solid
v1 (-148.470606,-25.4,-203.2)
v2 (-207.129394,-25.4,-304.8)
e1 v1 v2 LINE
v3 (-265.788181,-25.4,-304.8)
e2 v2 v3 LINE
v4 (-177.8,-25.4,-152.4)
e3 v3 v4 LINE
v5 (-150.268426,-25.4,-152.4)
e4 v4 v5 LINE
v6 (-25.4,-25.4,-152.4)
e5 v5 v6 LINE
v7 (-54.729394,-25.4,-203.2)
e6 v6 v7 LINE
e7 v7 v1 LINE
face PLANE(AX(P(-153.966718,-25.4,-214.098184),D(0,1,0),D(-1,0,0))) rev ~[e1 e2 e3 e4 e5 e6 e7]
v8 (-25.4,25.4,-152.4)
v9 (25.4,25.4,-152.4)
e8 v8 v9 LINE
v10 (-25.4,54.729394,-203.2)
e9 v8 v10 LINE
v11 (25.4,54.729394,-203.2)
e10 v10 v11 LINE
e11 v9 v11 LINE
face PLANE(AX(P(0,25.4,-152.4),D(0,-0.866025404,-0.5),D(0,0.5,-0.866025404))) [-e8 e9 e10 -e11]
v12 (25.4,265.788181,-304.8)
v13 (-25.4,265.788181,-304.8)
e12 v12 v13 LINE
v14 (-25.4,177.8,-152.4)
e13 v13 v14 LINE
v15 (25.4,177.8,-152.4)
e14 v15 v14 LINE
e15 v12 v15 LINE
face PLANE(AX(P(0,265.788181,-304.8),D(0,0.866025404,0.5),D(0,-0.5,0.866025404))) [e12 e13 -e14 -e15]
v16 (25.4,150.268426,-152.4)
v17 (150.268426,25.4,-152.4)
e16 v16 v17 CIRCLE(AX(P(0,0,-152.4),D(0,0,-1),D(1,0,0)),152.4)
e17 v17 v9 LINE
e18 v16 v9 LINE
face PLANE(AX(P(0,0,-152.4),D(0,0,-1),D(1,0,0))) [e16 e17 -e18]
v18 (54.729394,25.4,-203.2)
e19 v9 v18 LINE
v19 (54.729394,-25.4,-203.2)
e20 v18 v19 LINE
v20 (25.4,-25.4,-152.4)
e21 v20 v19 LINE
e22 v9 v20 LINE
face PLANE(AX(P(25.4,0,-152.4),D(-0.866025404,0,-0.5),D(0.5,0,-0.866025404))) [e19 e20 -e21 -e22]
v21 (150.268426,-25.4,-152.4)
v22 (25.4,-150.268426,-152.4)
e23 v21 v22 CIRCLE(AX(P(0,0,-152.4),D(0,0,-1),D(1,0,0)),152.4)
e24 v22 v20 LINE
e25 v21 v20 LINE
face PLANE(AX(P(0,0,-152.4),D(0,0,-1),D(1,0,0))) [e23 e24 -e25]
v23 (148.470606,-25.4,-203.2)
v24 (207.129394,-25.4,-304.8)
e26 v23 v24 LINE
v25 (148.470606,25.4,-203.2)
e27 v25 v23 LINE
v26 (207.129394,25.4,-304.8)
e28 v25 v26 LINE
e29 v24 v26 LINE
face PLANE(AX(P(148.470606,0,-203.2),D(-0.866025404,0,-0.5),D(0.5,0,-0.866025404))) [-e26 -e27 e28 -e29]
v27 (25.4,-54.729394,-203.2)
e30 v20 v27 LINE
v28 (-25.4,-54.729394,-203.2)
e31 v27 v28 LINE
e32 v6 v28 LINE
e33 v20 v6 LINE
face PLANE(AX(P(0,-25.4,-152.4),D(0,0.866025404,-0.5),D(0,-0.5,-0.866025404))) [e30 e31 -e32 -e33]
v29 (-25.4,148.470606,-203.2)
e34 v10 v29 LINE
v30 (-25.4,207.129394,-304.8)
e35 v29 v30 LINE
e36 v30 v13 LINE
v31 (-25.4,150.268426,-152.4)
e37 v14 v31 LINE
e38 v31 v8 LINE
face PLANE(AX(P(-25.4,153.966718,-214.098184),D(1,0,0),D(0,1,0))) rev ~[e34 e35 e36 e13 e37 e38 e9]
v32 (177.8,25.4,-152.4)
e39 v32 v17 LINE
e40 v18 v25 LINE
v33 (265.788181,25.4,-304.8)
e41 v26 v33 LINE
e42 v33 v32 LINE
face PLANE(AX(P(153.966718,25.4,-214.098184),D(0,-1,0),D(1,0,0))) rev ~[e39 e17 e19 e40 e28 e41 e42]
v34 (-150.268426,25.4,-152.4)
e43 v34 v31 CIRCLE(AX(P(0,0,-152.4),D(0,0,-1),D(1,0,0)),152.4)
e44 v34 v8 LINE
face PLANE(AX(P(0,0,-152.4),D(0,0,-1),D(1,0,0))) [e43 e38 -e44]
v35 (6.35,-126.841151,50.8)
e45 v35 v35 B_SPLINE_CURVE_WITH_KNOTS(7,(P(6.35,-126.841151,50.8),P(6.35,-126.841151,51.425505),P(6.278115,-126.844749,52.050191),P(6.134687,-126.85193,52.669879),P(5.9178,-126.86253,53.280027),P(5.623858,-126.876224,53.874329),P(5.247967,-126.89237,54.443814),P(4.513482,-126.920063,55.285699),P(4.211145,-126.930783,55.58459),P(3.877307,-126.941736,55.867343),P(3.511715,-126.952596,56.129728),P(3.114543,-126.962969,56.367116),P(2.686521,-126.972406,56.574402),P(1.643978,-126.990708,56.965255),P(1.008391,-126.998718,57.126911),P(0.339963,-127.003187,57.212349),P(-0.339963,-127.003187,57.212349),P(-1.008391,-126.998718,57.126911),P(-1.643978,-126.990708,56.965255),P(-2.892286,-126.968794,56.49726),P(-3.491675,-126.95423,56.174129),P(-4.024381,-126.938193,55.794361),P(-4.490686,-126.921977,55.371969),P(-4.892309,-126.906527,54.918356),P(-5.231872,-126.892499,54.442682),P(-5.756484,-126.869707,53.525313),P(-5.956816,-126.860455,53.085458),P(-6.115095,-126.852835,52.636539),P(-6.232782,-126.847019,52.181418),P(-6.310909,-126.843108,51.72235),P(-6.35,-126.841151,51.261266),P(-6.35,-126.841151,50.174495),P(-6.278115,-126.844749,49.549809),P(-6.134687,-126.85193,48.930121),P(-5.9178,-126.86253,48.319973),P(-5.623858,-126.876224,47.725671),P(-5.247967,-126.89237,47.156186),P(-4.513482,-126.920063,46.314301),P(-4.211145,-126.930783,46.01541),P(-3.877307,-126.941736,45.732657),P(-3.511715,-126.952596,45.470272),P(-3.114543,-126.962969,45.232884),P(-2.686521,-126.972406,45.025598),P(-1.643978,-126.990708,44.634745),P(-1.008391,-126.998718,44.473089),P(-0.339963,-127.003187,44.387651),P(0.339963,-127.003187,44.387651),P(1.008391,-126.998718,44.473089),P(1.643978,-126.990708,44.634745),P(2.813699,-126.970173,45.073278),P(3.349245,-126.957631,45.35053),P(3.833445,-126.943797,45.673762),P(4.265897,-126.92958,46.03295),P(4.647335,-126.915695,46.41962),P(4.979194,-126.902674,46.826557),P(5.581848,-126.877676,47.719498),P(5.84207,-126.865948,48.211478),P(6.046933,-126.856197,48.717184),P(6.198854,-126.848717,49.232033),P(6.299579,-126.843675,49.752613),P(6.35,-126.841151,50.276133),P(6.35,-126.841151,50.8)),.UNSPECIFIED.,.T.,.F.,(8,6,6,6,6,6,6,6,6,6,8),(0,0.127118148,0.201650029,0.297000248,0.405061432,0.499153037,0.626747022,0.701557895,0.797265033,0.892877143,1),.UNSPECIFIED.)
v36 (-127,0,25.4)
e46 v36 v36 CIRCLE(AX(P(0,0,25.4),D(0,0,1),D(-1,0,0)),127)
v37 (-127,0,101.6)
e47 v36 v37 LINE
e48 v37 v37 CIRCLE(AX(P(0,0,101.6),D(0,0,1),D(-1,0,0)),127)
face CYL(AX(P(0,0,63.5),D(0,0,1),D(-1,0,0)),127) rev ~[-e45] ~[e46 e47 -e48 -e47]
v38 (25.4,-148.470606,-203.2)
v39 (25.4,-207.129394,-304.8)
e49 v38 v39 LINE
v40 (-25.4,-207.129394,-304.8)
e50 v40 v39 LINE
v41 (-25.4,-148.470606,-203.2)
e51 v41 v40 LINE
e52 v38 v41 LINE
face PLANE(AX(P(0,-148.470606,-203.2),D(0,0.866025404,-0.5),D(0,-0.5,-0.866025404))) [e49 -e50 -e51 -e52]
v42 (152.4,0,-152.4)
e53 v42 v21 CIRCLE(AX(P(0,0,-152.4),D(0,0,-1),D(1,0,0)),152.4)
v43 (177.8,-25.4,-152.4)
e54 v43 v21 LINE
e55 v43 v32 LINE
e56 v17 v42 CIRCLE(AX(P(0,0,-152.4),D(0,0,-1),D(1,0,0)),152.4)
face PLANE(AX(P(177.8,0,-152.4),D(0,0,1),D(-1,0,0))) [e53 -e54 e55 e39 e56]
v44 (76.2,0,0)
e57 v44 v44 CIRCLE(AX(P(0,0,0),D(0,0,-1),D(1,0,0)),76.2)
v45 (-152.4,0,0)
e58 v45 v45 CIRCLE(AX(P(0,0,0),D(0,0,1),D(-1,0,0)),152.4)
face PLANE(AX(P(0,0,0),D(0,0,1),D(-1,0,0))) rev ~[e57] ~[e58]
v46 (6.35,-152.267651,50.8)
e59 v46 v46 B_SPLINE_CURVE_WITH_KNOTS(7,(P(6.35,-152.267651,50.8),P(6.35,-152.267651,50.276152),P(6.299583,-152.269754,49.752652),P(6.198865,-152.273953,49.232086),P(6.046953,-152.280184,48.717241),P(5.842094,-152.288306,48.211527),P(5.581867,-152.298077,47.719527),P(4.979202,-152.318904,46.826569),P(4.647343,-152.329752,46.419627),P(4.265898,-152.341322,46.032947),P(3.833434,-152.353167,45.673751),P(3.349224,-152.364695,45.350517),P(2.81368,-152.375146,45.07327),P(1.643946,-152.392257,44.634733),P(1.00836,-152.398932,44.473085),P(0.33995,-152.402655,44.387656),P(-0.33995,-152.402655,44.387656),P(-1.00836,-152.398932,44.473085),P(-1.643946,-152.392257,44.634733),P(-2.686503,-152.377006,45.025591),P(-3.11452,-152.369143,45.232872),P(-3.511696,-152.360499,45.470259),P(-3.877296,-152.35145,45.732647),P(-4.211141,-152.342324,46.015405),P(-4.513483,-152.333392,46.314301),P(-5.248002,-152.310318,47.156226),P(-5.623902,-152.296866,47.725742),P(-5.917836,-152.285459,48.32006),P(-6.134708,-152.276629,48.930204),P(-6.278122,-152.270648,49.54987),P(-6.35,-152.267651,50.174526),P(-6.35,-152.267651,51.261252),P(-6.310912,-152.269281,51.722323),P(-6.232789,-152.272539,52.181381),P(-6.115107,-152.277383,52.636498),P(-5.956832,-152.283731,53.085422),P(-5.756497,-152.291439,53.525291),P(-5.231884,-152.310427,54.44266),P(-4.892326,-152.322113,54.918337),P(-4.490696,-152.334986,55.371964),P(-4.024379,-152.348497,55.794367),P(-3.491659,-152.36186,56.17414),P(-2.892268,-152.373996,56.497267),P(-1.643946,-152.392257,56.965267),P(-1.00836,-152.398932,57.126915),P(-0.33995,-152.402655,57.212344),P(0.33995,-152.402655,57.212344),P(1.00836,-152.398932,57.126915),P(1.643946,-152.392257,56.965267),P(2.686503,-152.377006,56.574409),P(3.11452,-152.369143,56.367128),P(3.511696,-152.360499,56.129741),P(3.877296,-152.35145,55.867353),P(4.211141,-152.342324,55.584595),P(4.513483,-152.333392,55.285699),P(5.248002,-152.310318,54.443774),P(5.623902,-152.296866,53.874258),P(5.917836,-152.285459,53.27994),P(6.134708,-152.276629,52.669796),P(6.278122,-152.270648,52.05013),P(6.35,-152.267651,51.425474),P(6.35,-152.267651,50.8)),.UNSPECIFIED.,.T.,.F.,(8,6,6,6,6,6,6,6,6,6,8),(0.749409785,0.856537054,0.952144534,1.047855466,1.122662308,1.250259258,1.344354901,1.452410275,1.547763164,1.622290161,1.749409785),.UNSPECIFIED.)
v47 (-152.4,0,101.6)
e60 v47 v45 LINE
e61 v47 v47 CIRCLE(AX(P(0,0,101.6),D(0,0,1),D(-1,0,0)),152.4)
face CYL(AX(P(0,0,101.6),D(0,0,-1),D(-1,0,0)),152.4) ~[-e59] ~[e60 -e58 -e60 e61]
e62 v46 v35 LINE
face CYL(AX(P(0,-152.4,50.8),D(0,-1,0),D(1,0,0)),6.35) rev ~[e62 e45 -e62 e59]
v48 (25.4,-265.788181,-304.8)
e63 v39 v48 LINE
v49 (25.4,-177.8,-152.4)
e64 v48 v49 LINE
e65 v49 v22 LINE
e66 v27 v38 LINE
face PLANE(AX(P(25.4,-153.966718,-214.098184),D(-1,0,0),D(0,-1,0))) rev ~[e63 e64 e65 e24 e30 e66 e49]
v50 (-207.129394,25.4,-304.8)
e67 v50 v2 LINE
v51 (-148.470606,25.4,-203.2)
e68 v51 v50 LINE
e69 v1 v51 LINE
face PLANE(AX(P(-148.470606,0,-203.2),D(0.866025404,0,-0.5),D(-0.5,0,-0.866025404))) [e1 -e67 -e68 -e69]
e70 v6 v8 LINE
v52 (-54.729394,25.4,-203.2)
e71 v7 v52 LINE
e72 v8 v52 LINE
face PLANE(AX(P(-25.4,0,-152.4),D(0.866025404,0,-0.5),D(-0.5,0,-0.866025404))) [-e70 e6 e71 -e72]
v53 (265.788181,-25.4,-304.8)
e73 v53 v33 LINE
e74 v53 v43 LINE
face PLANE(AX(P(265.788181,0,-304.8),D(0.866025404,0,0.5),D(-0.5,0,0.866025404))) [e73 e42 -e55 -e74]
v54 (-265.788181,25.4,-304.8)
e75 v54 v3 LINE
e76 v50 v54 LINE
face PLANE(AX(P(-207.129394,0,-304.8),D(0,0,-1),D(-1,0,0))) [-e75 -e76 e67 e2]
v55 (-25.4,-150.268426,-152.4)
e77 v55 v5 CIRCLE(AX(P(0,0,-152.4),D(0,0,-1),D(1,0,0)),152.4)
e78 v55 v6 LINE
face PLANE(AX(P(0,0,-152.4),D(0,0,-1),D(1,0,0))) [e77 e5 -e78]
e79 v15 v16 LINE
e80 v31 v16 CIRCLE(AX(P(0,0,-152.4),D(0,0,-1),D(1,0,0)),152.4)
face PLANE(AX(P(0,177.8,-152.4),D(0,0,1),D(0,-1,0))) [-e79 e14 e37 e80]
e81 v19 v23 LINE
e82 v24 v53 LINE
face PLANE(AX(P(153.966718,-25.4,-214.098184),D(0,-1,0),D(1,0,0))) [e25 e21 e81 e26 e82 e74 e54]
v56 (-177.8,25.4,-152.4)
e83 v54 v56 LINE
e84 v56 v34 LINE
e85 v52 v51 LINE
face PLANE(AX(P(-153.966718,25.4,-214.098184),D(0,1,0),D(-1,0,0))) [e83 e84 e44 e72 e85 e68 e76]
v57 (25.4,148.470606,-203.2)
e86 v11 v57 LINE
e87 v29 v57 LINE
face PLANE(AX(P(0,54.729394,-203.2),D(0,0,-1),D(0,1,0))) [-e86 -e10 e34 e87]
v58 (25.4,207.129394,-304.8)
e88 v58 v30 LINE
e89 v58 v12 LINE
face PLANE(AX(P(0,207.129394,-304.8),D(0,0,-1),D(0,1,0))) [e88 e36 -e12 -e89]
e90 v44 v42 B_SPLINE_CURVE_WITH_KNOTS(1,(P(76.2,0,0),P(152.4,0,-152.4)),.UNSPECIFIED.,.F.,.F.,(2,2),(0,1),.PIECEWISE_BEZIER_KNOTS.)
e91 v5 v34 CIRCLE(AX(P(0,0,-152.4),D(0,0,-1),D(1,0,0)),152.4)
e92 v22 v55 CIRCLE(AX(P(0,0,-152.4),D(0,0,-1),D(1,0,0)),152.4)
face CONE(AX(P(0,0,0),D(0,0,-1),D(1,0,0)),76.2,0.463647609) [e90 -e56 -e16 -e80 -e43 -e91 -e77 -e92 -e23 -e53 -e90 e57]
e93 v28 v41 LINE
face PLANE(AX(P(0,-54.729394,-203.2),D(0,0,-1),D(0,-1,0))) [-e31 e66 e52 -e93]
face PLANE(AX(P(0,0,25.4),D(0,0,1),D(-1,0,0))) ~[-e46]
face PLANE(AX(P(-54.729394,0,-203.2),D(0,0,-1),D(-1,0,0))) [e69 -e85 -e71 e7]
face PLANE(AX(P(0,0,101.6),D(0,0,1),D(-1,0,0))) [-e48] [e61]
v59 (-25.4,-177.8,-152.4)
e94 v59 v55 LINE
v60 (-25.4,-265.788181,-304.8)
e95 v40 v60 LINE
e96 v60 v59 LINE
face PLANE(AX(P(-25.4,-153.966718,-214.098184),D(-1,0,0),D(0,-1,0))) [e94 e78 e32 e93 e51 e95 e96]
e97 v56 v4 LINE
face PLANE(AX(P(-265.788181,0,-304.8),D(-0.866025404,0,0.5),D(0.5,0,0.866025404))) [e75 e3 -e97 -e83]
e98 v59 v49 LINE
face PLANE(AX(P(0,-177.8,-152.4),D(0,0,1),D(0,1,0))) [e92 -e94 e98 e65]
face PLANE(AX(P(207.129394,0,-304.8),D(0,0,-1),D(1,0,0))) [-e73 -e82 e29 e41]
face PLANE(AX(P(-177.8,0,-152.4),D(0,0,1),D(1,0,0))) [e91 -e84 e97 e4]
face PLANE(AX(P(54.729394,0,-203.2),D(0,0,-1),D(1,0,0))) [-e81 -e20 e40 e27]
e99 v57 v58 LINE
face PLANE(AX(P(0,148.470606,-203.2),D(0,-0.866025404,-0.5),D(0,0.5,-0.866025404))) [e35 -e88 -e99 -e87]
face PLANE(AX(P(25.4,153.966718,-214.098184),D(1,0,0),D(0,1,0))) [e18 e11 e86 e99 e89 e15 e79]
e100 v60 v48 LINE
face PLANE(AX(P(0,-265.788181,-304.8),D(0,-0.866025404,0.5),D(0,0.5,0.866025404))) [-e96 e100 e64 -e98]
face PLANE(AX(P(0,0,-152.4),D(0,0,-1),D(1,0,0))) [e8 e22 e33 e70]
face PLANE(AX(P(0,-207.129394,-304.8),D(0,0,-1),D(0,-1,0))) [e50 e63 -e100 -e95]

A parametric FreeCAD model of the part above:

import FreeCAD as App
import Part
import Sketcher
from FreeCAD import Vector
Q = App.Units.Quantity


def add_polygon(sketch, points):
    """Adds a closed chain of lines whose ends are joined by coincident constraints."""
    first, n = sketch.GeometryCount, len(points)
    for a, b in zip(points, points[1:] + points[:1]):
        sketch.addGeometry(Part.LineSegment(App.Vector(*a, 0), App.Vector(*b, 0)), False)
    for i in range(n):
        sketch.addConstraint(Sketcher.Constraint("Coincident", first + i, 2, first + (i + 1) % n, 1))

doc = App.newDocument("Part")
params = doc.addObject("Spreadsheet::Sheet", "Params")
for row, (alias, value) in enumerate([
    ("sketch1_width", "6 in"),
    ("sketch1_width2", "5 in"),
    ("sketch1_height", "4 in"),
    ("revolution_angle", "360 deg"),
    ("sketch2_diameter", "0.5 in"),
    ("pocket1_length", "2 in"),
    ("sketch3_diameter", "6 in"),
    ("sketch4_diameter", "12 in"),
    ("sketch5_width", "6 in"),
    ("pad1_length", "2 in"),
], start=1):
    params.set(f"A{row}", alias)
    params.set(f"B{row}", "=" + value)
    params.setAlias(f"B{row}", alias)

body = doc.addObject("PartDesign::Body", "Body")

# Sketch on XZ plane
sketch1 = body.newObject("Sketcher::SketchObject", "Sketch")
sketch1.AttachmentSupport = (doc.getObject("XZ_Plane"), [""])
sketch1.MapMode = "FlatFace"
add_polygon(sketch1, [(-152, 102), (-152, 0), (0, 0), (0, 25), (-127, 25), (-127, 102)])  # lines 0-5
sketch1.addConstraint(Sketcher.Constraint("Vertical", 0))
sketch1.addConstraint(Sketcher.Constraint("Horizontal", 1))
sketch1.addConstraint(Sketcher.Constraint("Vertical", 2))
sketch1.addConstraint(Sketcher.Constraint("Horizontal", 3))
sketch1.addConstraint(Sketcher.Constraint("Vertical", 4))
sketch1.addConstraint(Sketcher.Constraint("Horizontal", 5))
sketch1.addConstraint(Sketcher.Constraint("Coincident", 1, 2, -1, 1))
sketch1.addConstraint(Sketcher.Constraint("Equal", 5, 2))
sketch1.addConstraint(Sketcher.Constraint("DistanceX", 1, 1, 1, 2, Q("6 in")))
sketch1.addConstraint(Sketcher.Constraint("DistanceX", 3, 2, 3, 1, Q("5 in")))
sketch1.addConstraint(Sketcher.Constraint("DistanceY", 0, 2, 0, 1, Q("4 in")))
sketch1.setExpression("Constraints[14]", "Params.sketch1_width")
sketch1.setExpression("Constraints[15]", "Params.sketch1_width2")
sketch1.setExpression("Constraints[16]", "Params.sketch1_height")
revolution = body.newObject("PartDesign::Revolution", "Revolution")
revolution.Profile = sketch1
revolution.ReferenceAxis = (sketch1, ["V_Axis"])
revolution.setExpression("Angle", "Params.revolution_angle")

# Sketch on XZ plane
sketch2 = body.newObject("Sketcher::SketchObject", "Sketch001")
sketch2.AttachmentSupport = (doc.getObject("XZ_Plane"), [""])
sketch2.MapMode = "FlatFace"
sketch2.AttachmentOffset = App.Placement(Vector(0, 0, 6 * 25.4), App.Rotation())
sketch2.addGeometry(Part.Circle(Vector(0, 51, 0), Vector(0, 0, 1), 6), False)
sketch2.addConstraint(Sketcher.Constraint("PointOnObject", 0, 3, -2))
sketch2.addConstraint(Sketcher.Constraint("Diameter", 0, Q("0.5 in")))
sketch2.addConstraint(Sketcher.Constraint("DistanceY", -1, 1, 0, 3, Q("2 in")))
sketch2.setExpression("Constraints[1]", "Params.sketch2_diameter")
pocket1 = body.newObject("PartDesign::Pocket", "Pocket")
pocket1.Profile = sketch2
pocket1.setExpression("Length", "Params.pocket1_length")

# Sketch on XY plane
sketch3 = body.newObject("Sketcher::SketchObject", "Sketch002")
sketch3.AttachmentSupport = (doc.getObject("XY_Plane"), [""])
sketch3.MapMode = "FlatFace"
sketch3.addGeometry(Part.Circle(Vector(0, 0, 0), Vector(0, 0, 1), 76), False)
sketch3.addConstraint(Sketcher.Constraint("Coincident", 0, 3, -1, 1))
sketch3.addConstraint(Sketcher.Constraint("Diameter", 0, Q("6 in")))
sketch3.setExpression("Constraints[1]", "Params.sketch3_diameter")

# Sketch on XY plane
sketch4 = body.newObject("Sketcher::SketchObject", "Sketch003")
sketch4.AttachmentSupport = (doc.getObject("XY_Plane"), [""])
sketch4.MapMode = "FlatFace"
sketch4.AttachmentOffset = App.Placement(Vector(0, 0, -6 * 25.4), App.Rotation())
sketch4.addGeometry(Part.Circle(Vector(0, 0, 0), Vector(0, 0, 1), 152), False)
sketch4.addConstraint(Sketcher.Constraint("Coincident", 0, 3, -1, 1))
sketch4.addConstraint(Sketcher.Constraint("Diameter", 0, Q("12 in")))
sketch4.setExpression("Constraints[1]", "Params.sketch4_diameter")

additiveloft = body.newObject("PartDesign::AdditiveLoft", "AdditiveLoft")
additiveloft.Profile = sketch3
additiveloft.Sections = [sketch4]
body2 = doc.addObject("PartDesign::Body", "Body001")

# Sketch on YZ plane
sketch5 = body2.newObject("Sketcher::SketchObject", "Sketch004")
sketch5.AttachmentSupport = (doc.getObject("YZ_Plane001"), [""])
sketch5.MapMode = "FlatFace"
add_polygon(sketch5, [(178, -152), (25, -152), (55, -203), (148, -203), (207, -305), (266, -305)])  # lines 0-5
sketch5.addConstraint(Sketcher.Constraint("Horizontal", 0))
sketch5.addConstraint(Sketcher.Constraint("Horizontal", 2))
sketch5.addConstraint(Sketcher.Constraint("Horizontal", 4))
sketch5.addConstraint(Sketcher.Constraint("Parallel", 1, 3))
sketch5.addConstraint(Sketcher.Constraint("Parallel", 3, 5))
sketch5.addConstraint(Sketcher.Constraint("DistanceX", 0, 2, 0, 1, Q("6 in")))
sketch5.addConstraint(Sketcher.Constraint("DistanceX", -1, 1, 0, 2, Q("1 in")))
sketch5.addConstraint(Sketcher.Constraint("DistanceY", 0, 2, -1, 1, Q("6 in")))
sketch5.addConstraint(Sketcher.Constraint("DistanceY", 1, 2, -1, 1, Q("8 in")))
sketch5.addConstraint(Sketcher.Constraint("DistanceY", 3, 2, -1, 1, Q("12 in")))
sketch5.addConstraint(Sketcher.Constraint("Angle", 1, Q("-60 deg")))
sketch5.addConstraint(Sketcher.Constraint("DistanceX", 1, 2, 3, 2, Q("6 in")))
sketch5.setExpression("Constraints[11]", "Params.sketch5_width")
pad1 = body2.newObject("PartDesign::Pad", "Pad")
pad1.Profile = sketch5
pad1.setExpression("Length", "Params.pad1_length")
pad1.Midplane = True
doc.recompute()

body3 = doc.addObject("PartDesign::Body", "Body002")
body3.BaseFeature = body2
boolean = body.newObject("PartDesign::Boolean", "Boolean")
boolean.Type = "Fuse"
boolean.addObjects([body3])
doc.recompute()

body4 = doc.addObject("PartDesign::Body", "Body003")
body4.BaseFeature = body2
body4.Placement = App.Placement(Vector(0, 0, 0), App.Rotation(Vector(0, 0, -1), 90))
boolean2 = body.newObject("PartDesign::Boolean", "Boolean001")
boolean2.Type = "Fuse"
boolean2.addObjects([body4])
doc.recompute()

body5 = doc.addObject("PartDesign::Body", "Body004")
body5.BaseFeature = body2
body5.Placement = App.Placement(Vector(0, 0, 0), App.Rotation(Vector(0, 0, -1), 180))
boolean3 = body.newObject("PartDesign::Boolean", "Boolean002")
boolean3.Type = "Fuse"
boolean3.addObjects([body5])
doc.recompute()

body2.Placement = App.Placement(Vector(0, 0, 0), App.Rotation(Vector(0, 0, -1), 270))
boolean4 = body.newObject("PartDesign::Boolean", "Boolean003")
boolean4.Type = "Fuse"
boolean4.addObjects([body2])

doc.recompute()
